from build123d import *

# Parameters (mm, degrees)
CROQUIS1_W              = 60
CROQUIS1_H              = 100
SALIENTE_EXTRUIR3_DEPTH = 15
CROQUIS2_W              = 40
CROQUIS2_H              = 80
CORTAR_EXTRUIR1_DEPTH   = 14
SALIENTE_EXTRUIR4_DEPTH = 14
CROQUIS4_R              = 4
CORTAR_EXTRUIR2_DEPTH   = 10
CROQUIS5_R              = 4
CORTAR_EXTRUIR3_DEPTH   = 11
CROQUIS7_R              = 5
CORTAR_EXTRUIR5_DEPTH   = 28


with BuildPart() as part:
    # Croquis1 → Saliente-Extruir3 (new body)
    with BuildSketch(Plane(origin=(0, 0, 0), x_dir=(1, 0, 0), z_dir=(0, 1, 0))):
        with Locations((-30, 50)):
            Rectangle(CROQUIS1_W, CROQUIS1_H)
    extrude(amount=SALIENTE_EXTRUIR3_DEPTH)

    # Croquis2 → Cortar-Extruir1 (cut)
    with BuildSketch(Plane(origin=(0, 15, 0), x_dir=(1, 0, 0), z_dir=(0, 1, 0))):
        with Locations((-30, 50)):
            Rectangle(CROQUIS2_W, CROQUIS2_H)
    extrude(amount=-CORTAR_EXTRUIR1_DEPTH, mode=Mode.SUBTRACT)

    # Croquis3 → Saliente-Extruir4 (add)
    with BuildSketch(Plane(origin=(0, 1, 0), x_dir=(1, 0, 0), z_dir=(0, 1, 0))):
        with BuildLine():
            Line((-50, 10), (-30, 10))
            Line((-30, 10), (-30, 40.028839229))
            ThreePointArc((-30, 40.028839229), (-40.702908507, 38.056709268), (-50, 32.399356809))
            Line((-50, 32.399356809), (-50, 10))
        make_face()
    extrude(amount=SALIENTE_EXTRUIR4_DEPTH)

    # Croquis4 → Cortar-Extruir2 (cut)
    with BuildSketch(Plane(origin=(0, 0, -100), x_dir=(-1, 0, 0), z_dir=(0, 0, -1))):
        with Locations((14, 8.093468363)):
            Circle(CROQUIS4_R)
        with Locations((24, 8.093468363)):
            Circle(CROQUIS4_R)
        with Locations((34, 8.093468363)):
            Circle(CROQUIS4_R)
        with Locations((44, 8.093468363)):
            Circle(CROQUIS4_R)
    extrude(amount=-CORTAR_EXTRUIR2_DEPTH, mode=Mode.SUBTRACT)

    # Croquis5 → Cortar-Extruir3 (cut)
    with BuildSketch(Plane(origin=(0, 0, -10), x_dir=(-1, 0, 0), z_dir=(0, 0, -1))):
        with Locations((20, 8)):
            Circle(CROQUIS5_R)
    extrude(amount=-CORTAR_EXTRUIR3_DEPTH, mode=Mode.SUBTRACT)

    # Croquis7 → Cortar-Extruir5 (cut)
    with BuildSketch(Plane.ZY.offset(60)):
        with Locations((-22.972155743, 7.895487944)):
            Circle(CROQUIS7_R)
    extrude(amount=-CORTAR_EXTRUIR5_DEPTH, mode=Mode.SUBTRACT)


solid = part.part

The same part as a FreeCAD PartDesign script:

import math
import FreeCAD as App
import Part
import Sketcher

doc = App.newDocument("Part")
params = doc.addObject("Spreadsheet::Sheet", "Params")
for row, (alias, value) in enumerate([
    ("sketch1_width", "60 mm"),
    ("sketch1_height", "100 mm"),
    ("pad1_length", "15 mm"),
    ("sketch2_width", "40 mm"),
    ("sketch2_height", "80 mm"),
    ("pocket1_length", "14 mm"),
    ("sketch3_width", "20 mm"),
    ("pad2_length", "14 mm"),
    ("sketch4_diameter", "8 mm"),
    ("pocket2_length", "10 mm"),
    ("sketch5_diameter", "8 mm"),
    ("pocket3_length", "11 mm"),
    ("sketch6_diameter", "10 mm"),
    ("pocket4_length", "28 mm"),
], start=1):
    params.set(f"A{row}", alias)
    params.set(f"B{row}", "=" + value)
    params.setAlias(f"B{row}", alias)

body = doc.addObject("PartDesign::Body", "Body")

sketch1 = body.newObject("Sketcher::SketchObject", "Sketch")
sketch1.AttachmentSupport = (doc.getObject("XZ_Plane"), [""])
sketch1.MapMode = "FlatFace"
sketch1.addGeometry([
    Part.LineSegment(App.Vector(-60, -100, 0), App.Vector(-60, 0, 0)),
    Part.LineSegment(App.Vector(-60, 0, 0), App.Vector(0, 0, 0)),
    Part.LineSegment(App.Vector(0, 0, 0), App.Vector(0, -100, 0)),
    Part.LineSegment(App.Vector(0, -100, 0), App.Vector(-60, -100, 0)),
], False)
sketch1.addConstraint([
    Sketcher.Constraint("Coincident", 0, 2, 1, 1),
    Sketcher.Constraint("Coincident", 1, 2, 2, 1),
    Sketcher.Constraint("Coincident", 2, 2, 3, 1),
    Sketcher.Constraint("Coincident", 3, 2, 0, 1),
    Sketcher.Constraint("Vertical", 0),
    Sketcher.Constraint("Horizontal", 1),
    Sketcher.Constraint("Vertical", 2),
    Sketcher.Constraint("Horizontal", 3),
    Sketcher.Constraint("Coincident", 1, 2, -1, 1),
    Sketcher.Constraint("DistanceX", 1, 1, 1, 2, 60.0),
    Sketcher.Constraint("DistanceY", 0, 1, 0, 2, 100.0),
])
sketch1.setExpression("Constraints[9]", "Params.sketch1_width")
sketch1.setExpression("Constraints[10]", "Params.sketch1_height")
pad1 = body.newObject("PartDesign::Pad", "Pad")
pad1.Profile = sketch1
pad1.setExpression("Length", "Params.pad1_length")
pad1.Reversed = True

sketch2 = body.newObject("Sketcher::SketchObject", "Sketch001")
sketch2.AttachmentSupport = (doc.getObject("XZ_Plane"), [""])
sketch2.MapMode = "FlatFace"
sketch2.AttachmentOffset = App.Placement(App.Vector(0, 0, -15), App.Rotation())
sketch2.addGeometry([
    Part.LineSegment(App.Vector(-50, -90, 0), App.Vector(-50, -10, 0)),
    Part.LineSegment(App.Vector(-50, -10, 0), App.Vector(-10, -10, 0)),
    Part.LineSegment(App.Vector(-10, -10, 0), App.Vector(-10, -90, 0)),
    Part.LineSegment(App.Vector(-10, -90, 0), App.Vector(-50, -90, 0)),
], False)
sketch2.addConstraint([
    Sketcher.Constraint("Coincident", 0, 2, 1, 1),
    Sketcher.Constraint("Coincident", 1, 2, 2, 1),
    Sketcher.Constraint("Coincident", 2, 2, 3, 1),
    Sketcher.Constraint("Coincident", 3, 2, 0, 1),
    Sketcher.Constraint("Vertical", 0),
    Sketcher.Constraint("Horizontal", 1),
    Sketcher.Constraint("Vertical", 2),
    Sketcher.Constraint("Horizontal", 3),
    Sketcher.Constraint("DistanceX", 1, 1, 1, 2, 40.0),
    Sketcher.Constraint("DistanceY", 0, 1, 0, 2, 80.0),
    Sketcher.Constraint("DistanceX", 0, 2, -1, 1, 50.0),
    Sketcher.Constraint("DistanceY", 0, 2, -1, 1, 10.0),
])
sketch2.setExpression("Constraints[8]", "Params.sketch2_width")
sketch2.setExpression("Constraints[9]", "Params.sketch2_height")
pocket1 = body.newObject("PartDesign::Pocket", "Pocket")
pocket1.Profile = sketch2
pocket1.setExpression("Length", "Params.pocket1_length")
pocket1.Reversed = True

sketch3 = body.newObject("Sketcher::SketchObject", "Sketch002")
sketch3.AttachmentSupport = (doc.getObject("XZ_Plane"), [""])
sketch3.MapMode = "FlatFace"
sketch3.AttachmentOffset = App.Placement(App.Vector(0, 0, -1), App.Rotation())
sketch3.addGeometry([
    Part.LineSegment(App.Vector(-50, -10, 0), App.Vector(-30, -10, 0)),
    Part.LineSegment(App.Vector(-30, -10, 0), App.Vector(-30, -40.028839, 0)),
    Part.ArcOfCircle(Part.Circle(App.Vector(-30, -10, 0), App.Vector(0, 0, 1), 30.028839), math.radians(-131.761117), math.radians(-90)),
    Part.LineSegment(App.Vector(-50, -32.399357, 0), App.Vector(-50, -10, 0)),
], False)
sketch3.addConstraint([
    Sketcher.Constraint("Coincident", 0, 2, 1, 1),
    Sketcher.Constraint("Coincident", 1, 2, 2, 2),
    Sketcher.Constraint("Coincident", 2, 1, 3, 1),
    Sketcher.Constraint("Coincident", 3, 2, 0, 1),
    Sketcher.Constraint("Horizontal", 0),
    Sketcher.Constraint("Vertical", 1),
    Sketcher.Constraint("Vertical", 3),
    Sketcher.Constraint("Coincident", 0, 2, 2, 3),
    Sketcher.Constraint("DistanceX", 0, 1, 0, 2, 20.0),
    Sketcher.Constraint("DistanceX", 2, 3, -1, 1, 30.0),
    Sketcher.Constraint("DistanceY", 2, 3, -1, 1, 10.0),
    Sketcher.Constraint("Radius", 2, 30.028839),
])
sketch3.setExpression("Constraints[8]", "Params.sketch3_width")
pad2 = body.newObject("PartDesign::Pad", "Pad001")
pad2.Profile = sketch3
pad2.setExpression("Length", "Params.pad2_length")
pad2.Reversed = True

sketch4 = body.newObject("Sketcher::SketchObject", "Sketch003")
sketch4.AttachmentSupport = (doc.getObject("XY_Plane"), [""])
sketch4.MapMode = "FlatFace"
sketch4.AttachmentOffset = App.Placement(App.Vector(0, 0, -100), App.Rotation())
sketch4.addGeometry([
    Part.Circle(App.Vector(-14, 8.093468, 0), App.Vector(0, 0, 1), 4),
    Part.Circle(App.Vector(-24, 8.093468, 0), App.Vector(0, 0, 1), 4),
    Part.Circle(App.Vector(-34, 8.093468, 0), App.Vector(0, 0, 1), 4),
    Part.Circle(App.Vector(-44, 8.093468, 0), App.Vector(0, 0, 1), 4),
], False)
sketch4.addConstraint([
    Sketcher.Constraint("Equal", 0, 1),
    Sketcher.Constraint("Equal", 1, 2),
    Sketcher.Constraint("Equal", 2, 3),
    Sketcher.Constraint("Horizontal", 0, 3, 1, 3),
    Sketcher.Constraint("Horizontal", 1, 3, 2, 3),
    Sketcher.Constraint("Horizontal", 2, 3, 3, 3),
    Sketcher.Constraint("Diameter", 0, 8.0),
    Sketcher.Constraint("DistanceX", 0, 3, -1, 1, 14.0),
    Sketcher.Constraint("DistanceX", 1, 3, -1, 1, 24.0),
    Sketcher.Constraint("DistanceX", 2, 3, -1, 1, 34.0),
    Sketcher.Constraint("DistanceX", 3, 3, -1, 1, 44.0),
    Sketcher.Constraint("DistanceY", -1, 1, 0, 3, 8.093468),
])
sketch4.setExpression("Constraints[6]", "Params.sketch4_diameter")
pocket2 = body.newObject("PartDesign::Pocket", "Pocket001")
pocket2.Profile = sketch4
pocket2.setExpression("Length", "Params.pocket2_length")
pocket2.Reversed = True

sketch5 = body.newObject("Sketcher::SketchObject", "Sketch004")
sketch5.AttachmentSupport = (doc.getObject("XY_Plane"), [""])
sketch5.MapMode = "FlatFace"
sketch5.AttachmentOffset = App.Placement(App.Vector(0, 0, -10), App.Rotation())
sketch5.addGeometry(Part.Circle(App.Vector(-20, 8, 0), App.Vector(0, 0, 1), 4), False)
sketch5.addConstraint([
    Sketcher.Constraint("Diameter", 0, 8.0),
    Sketcher.Constraint("DistanceX", 0, 3, -1, 1, 20.0),
    Sketcher.Constraint("DistanceY", -1, 1, 0, 3, 8.0),
])
sketch5.setExpression("Constraints[0]", "Params.sketch5_diameter")
pocket3 = body.newObject("PartDesign::Pocket", "Pocket002")
pocket3.Profile = sketch5
pocket3.setExpression("Length", "Params.pocket3_length")
pocket3.Reversed = True

sketch6 = body.newObject("Sketcher::SketchObject", "Sketch005")
sketch6.AttachmentSupport = (doc.getObject("YZ_Plane"), [""])
sketch6.MapMode = "FlatFace"
sketch6.AttachmentOffset = App.Placement(App.Vector(0, 0, -60), App.Rotation())
sketch6.addGeometry(Part.Circle(App.Vector(7.895488, -22.972156, 0), App.Vector(0, 0, 1), 5), False)
sketch6.addConstraint([
    Sketcher.Constraint("Diameter", 0, 10.0),
    Sketcher.Constraint("DistanceX", -1, 1, 0, 3, 7.895488),
    Sketcher.Constraint("DistanceY", 0, 3, -1, 1, 22.972156),
])
sketch6.setExpression("Constraints[0]", "Params.sketch6_diameter")
pocket4 = body.newObject("PartDesign::Pocket", "Pocket003")
pocket4.Profile = sketch6
pocket4.setExpression("Length", "Params.pocket4_length")
pocket4.Reversed = True

doc.recompute()
